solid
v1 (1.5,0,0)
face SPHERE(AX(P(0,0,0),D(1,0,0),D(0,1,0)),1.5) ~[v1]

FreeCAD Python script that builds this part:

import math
import FreeCAD as App
import Part
import Sketcher

V = App.Vector
Q = App.Units.Quantity

doc = App.newDocument("Part")
body = doc.addObject("PartDesign::Body", "Body")

# Sketch on XY plane
sketch1 = body.newObject("Sketcher::SketchObject", "Sketch")
sketch1.AttachmentSupport = (doc.getObject("XY_Plane"), [""])
sketch1.MapMode = "FlatFace"
sketch1.addGeometry(Part.LineSegment(V(-1.5, 0, 0), V(1.5, 0, 0)), False)
sketch1.addGeometry(Part.ArcOfCircle(Part.Circle(V(0, 0, 0), V(0, 0, 1), 1.5), math.radians(0), math.radians(180)), False)
sketch1.addConstraint(Sketcher.Constraint("Coincident", 0, 1, 1, 2))
sketch1.addConstraint(Sketcher.Constraint("Coincident", 1, 1, 0, 2))
sketch1.addConstraint(Sketcher.Constraint("Horizontal", 0))
sketch1.addConstraint(Sketcher.Constraint("Coincident", 1, 3, -1, 1))
sketch1.addConstraint(Sketcher.Constraint("PointOnObject", 0, 1, -1))
sketch1.addConstraint(Sketcher.Constraint("Radius", 1, Q("1.5 mm")))
revolution = body.newObject("PartDesign::Revolution", "Revolution")
revolution.Profile = sketch1
revolution.ReferenceAxis = (sketch1, ["H_Axis"])
revolution.Angle = 360

doc.recompute()
